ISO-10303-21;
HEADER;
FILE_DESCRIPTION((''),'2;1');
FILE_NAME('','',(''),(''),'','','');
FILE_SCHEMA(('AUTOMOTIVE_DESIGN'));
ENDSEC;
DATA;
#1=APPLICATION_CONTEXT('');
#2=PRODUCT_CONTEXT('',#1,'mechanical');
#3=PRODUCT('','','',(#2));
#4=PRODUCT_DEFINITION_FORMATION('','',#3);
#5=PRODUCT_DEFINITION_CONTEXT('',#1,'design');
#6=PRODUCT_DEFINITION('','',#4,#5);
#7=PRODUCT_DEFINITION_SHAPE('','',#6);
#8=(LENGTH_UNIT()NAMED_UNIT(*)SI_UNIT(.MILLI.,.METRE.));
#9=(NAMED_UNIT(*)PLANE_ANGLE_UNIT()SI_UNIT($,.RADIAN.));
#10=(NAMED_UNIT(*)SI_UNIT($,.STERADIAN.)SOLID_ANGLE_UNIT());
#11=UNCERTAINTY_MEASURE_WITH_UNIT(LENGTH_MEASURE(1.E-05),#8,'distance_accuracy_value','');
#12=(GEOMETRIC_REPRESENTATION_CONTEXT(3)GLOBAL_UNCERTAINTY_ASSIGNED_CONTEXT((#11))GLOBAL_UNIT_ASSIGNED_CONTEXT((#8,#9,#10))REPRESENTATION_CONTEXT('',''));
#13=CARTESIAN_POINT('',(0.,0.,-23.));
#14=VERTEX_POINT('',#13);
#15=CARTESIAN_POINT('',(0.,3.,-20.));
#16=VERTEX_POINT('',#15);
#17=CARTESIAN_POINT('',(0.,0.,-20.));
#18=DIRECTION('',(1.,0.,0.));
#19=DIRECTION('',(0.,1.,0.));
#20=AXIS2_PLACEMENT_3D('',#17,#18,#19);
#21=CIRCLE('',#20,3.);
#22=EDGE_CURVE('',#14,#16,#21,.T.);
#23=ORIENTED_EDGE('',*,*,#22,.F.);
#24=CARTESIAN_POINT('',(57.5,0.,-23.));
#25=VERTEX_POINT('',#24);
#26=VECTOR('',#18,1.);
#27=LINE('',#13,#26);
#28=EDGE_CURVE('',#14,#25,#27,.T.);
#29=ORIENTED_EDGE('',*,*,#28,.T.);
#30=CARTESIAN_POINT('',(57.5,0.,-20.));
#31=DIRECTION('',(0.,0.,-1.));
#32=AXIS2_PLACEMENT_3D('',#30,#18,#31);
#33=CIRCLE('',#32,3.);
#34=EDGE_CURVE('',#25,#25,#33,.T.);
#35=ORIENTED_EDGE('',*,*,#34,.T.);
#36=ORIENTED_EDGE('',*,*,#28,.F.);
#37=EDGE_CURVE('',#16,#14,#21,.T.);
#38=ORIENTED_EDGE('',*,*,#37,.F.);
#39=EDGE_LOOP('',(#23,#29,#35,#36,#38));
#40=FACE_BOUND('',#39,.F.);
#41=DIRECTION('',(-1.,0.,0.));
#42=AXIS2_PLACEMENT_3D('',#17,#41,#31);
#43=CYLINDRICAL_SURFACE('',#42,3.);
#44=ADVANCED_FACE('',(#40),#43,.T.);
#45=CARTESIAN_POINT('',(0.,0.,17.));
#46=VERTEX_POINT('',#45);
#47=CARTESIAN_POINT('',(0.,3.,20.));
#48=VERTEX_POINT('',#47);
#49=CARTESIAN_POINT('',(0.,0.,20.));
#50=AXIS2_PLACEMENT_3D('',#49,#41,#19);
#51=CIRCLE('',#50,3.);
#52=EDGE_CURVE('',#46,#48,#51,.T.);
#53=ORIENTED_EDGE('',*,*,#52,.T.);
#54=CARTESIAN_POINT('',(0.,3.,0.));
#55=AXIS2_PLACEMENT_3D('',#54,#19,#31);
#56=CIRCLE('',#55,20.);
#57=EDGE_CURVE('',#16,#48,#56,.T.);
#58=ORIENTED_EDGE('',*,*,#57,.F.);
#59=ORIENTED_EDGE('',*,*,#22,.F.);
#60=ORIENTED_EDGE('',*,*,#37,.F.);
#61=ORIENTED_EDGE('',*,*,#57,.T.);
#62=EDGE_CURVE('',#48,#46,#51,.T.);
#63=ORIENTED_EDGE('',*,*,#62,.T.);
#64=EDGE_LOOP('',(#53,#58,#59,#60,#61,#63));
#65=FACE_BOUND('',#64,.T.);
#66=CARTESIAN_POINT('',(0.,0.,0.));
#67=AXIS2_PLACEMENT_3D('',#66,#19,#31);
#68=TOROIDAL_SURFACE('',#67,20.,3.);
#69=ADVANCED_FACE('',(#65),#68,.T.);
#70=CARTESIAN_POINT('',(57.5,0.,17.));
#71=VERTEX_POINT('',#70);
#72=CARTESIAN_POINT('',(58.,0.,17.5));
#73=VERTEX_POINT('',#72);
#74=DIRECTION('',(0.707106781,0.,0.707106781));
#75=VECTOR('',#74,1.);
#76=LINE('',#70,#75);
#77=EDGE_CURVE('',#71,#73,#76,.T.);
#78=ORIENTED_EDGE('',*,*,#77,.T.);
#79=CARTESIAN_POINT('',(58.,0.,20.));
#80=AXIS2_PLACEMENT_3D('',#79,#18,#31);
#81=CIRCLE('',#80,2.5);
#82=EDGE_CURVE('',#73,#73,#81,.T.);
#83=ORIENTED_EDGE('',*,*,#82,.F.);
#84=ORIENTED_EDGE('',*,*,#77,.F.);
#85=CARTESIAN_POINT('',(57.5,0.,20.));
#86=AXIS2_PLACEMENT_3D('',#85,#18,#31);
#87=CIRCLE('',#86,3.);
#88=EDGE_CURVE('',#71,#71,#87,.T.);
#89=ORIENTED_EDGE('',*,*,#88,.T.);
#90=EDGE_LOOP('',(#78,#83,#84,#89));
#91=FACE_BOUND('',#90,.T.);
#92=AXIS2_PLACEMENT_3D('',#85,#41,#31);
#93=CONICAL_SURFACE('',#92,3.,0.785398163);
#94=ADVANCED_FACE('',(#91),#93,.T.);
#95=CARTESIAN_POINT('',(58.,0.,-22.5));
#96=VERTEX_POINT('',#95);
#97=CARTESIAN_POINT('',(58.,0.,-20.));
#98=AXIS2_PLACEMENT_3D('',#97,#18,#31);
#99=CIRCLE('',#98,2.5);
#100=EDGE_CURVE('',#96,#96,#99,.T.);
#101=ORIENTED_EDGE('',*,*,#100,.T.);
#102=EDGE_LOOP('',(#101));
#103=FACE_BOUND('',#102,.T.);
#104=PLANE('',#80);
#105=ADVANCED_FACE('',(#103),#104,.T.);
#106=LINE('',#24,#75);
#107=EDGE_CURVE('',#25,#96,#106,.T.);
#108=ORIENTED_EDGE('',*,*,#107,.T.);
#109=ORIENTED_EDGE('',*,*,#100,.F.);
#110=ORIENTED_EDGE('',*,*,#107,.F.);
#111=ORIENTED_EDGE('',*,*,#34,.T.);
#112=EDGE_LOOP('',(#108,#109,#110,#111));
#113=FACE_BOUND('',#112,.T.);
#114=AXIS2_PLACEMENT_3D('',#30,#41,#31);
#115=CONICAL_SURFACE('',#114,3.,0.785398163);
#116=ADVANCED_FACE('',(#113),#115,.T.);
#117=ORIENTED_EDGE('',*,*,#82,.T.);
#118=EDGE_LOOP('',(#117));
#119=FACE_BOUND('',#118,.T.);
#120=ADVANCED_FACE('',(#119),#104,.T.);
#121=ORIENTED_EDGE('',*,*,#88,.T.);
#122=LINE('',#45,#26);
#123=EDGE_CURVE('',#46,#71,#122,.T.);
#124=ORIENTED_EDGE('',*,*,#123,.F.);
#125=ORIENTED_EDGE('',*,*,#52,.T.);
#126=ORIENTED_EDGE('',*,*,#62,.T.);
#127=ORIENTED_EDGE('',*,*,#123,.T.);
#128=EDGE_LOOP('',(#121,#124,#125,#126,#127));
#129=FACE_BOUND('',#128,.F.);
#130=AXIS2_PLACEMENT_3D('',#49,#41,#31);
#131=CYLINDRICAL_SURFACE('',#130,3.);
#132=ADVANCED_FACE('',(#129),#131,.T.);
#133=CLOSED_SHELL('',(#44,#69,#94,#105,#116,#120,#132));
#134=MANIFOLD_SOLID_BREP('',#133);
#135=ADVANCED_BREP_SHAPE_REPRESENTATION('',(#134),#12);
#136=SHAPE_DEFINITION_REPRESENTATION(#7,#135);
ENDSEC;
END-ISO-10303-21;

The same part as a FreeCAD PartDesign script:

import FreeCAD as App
import Part
import Sketcher
from FreeCAD import Vector
Q = App.Units.Quantity


def edges_at(feature, points):
    """Names of the edges that pass closest to the given points."""
    edges = feature.Shape.Edges
    near = lambda p: min(range(len(edges)), key=lambda i: edges[i].distToShape(Part.Vertex(*p))[0])
    return sorted({f"Edge{near(p) + 1}" for p in points})

doc = App.newDocument("Part")
body = doc.addObject("PartDesign::Body", "Body")

# Sketch on YZ plane
sketch1 = body.newObject("Sketcher::SketchObject", "Sketch")
sketch1.AttachmentSupport = (doc.getObject("YZ_Plane"), [""])
sketch1.MapMode = "FlatFace"
sketch1.addGeometry(Part.Circle(Vector(0, -20, 0), Vector(0, 0, 1), 3), False)
sketch1.addConstraint(Sketcher.Constraint("PointOnObject", 0, 3, -2))
sketch1.addConstraint(Sketcher.Constraint("Diameter", 0, Q("6 mm")))
sketch1.addConstraint(Sketcher.Constraint("DistanceY", 0, 3, -1, 1, Q("20 mm")))
revolution = body.newObject("PartDesign::Revolution", "Revolution")
revolution.Profile = sketch1
revolution.ReferenceAxis = (sketch1, ["H_Axis"])
revolution.Angle = 180

# Sketch on YZ plane
sketch2 = body.newObject("Sketcher::SketchObject", "Sketch001")
sketch2.AttachmentSupport = (doc.getObject("YZ_Plane"), [""])
sketch2.MapMode = "FlatFace"
sketch2.addGeometry(Part.Circle(Vector(0, 20, 0), Vector(0, 0, 1), 3), False)
sketch2.addGeometry(Part.Circle(Vector(0, -20, 0), Vector(0, 0, 1), 3), False)
sketch2.addConstraint(Sketcher.Constraint("Equal", 0, 1))
sketch2.addConstraint(Sketcher.Constraint("Symmetric", 0, 3, 1, 3, -1, 1))
sketch2.addConstraint(Sketcher.Constraint("PointOnObject", 0, 3, -2))
sketch2.addConstraint(Sketcher.Constraint("Diameter", 0, Q("6 mm")))
sketch2.addConstraint(Sketcher.Constraint("DistanceY", -1, 1, 0, 3, Q("20 mm")))
pad1 = body.newObject("PartDesign::Pad", "Pad")
pad1.Profile = sketch2
pad1.Length = 58
doc.recompute()

chamfer = body.newObject("PartDesign::Chamfer", "Chamfer")
chamfer.Base = (pad1, edges_at(pad1, [(58, 0, -17), (58, 0, 23)]))
chamfer.Size = 0.5

doc.recompute()
